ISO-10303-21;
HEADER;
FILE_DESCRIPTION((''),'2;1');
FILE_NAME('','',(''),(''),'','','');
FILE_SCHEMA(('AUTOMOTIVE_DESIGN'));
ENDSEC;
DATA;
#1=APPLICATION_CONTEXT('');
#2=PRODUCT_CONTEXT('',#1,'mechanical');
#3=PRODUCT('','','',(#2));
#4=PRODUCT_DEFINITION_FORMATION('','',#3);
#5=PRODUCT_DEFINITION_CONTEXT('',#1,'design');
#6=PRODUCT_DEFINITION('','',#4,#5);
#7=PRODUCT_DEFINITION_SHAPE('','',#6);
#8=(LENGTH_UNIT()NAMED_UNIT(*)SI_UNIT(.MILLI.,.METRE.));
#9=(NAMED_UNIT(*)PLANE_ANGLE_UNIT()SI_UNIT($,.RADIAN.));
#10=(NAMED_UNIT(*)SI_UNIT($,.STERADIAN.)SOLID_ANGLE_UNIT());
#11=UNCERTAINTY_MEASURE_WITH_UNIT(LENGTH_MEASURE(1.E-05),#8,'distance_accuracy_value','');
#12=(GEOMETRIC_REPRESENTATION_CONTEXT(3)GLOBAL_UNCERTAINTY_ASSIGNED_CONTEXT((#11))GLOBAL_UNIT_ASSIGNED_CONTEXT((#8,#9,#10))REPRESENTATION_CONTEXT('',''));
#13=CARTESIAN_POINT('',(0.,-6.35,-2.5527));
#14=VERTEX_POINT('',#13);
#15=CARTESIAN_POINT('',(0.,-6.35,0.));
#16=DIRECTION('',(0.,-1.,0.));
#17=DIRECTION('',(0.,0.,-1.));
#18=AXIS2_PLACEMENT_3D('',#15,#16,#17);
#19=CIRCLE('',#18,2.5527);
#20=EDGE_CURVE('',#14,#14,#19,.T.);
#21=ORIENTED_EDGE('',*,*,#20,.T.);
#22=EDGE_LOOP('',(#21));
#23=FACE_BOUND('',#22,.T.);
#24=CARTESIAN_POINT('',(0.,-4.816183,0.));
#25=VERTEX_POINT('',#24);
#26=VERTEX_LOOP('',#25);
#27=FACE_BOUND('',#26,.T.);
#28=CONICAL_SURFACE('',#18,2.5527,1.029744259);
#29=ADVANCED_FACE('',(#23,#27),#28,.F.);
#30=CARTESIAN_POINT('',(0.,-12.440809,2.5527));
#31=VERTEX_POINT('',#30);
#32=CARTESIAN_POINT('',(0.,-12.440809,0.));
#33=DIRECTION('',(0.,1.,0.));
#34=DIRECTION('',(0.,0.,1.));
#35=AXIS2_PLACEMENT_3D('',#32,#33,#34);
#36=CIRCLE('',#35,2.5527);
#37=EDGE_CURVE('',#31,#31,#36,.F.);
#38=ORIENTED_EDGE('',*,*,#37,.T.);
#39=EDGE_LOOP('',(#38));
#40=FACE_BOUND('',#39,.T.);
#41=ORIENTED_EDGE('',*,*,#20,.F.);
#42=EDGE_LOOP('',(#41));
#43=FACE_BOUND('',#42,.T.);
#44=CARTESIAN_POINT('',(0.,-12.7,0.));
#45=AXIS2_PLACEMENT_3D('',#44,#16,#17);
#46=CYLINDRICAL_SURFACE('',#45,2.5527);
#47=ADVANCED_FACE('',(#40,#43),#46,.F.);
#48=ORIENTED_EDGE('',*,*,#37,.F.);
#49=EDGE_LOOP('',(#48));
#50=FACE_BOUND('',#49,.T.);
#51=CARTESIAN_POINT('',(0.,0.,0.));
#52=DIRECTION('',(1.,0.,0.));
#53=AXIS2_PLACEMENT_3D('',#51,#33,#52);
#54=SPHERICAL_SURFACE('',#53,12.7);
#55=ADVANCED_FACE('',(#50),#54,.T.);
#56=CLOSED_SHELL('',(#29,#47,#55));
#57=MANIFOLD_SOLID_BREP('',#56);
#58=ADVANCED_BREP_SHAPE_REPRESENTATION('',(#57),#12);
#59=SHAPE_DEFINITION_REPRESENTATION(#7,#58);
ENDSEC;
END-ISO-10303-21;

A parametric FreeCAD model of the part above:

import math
import FreeCAD as App
import Part
import Sketcher
from FreeCAD import Vector
Q = App.Units.Quantity

doc = App.newDocument("Part")
params = doc.addObject("Spreadsheet::Sheet", "Params")
for row, (alias, value) in enumerate([
    ("sketch1_radius", "0.5 in"),
    ("revolution_angle", "360 deg"),
    ("sketch2_diameter", "0.201 in"),
    ("hole_diameter", "0.201 in"),
    ("hole_depth", "0.25 in"),
], start=1):
    params.set(f"A{row}", alias)
    params.set(f"B{row}", "=" + value)
    params.setAlias(f"B{row}", alias)

body = doc.addObject("PartDesign::Body", "Body")

sketch1 = body.newObject("Sketcher::SketchObject", "Sketch")
sketch1.AttachmentSupport = (doc.getObject("XY_Plane"), [""])
sketch1.MapMode = "FlatFace"
sketch1.addGeometry(Part.LineSegment(Vector(0, -13, 0), Vector(0, 13, 0)), False)
sketch1.addGeometry(Part.ArcOfCircle(Part.Circle(Vector(0, 0, 0), Vector(0, 0, 1), 13), math.radians(90), math.radians(270)), False)
sketch1.addConstraint(Sketcher.Constraint("Coincident", 0, 1, 1, 2))
sketch1.addConstraint(Sketcher.Constraint("Coincident", 1, 1, 0, 2))
sketch1.addConstraint(Sketcher.Constraint("Vertical", 0))
sketch1.addConstraint(Sketcher.Constraint("Coincident", 1, 3, -1, 1))
sketch1.addConstraint(Sketcher.Constraint("PointOnObject", 0, 1, -2))
sketch1.addConstraint(Sketcher.Constraint("Radius", 1, Q("0.5 in")))
sketch1.setExpression("Constraints[5]", "Params.sketch1_radius")
revolution = body.newObject("PartDesign::Revolution", "Revolution")
revolution.Profile = sketch1
revolution.ReferenceAxis = (sketch1, ["V_Axis"])
revolution.setExpression("Angle", "Params.revolution_angle")

sketch2 = body.newObject("Sketcher::SketchObject", "Sketch001")
sketch2.AttachmentSupport = (doc.getObject("XZ_Plane"), [""])
sketch2.MapMode = "FlatFace"
sketch2.AttachmentOffset = App.Placement(Vector(0, 0, 0.5 * 25.4), App.Rotation())
sketch2.addGeometry(Part.Circle(Vector(0, 0, 0), Vector(0, 0, 1), 2.6), False)
sketch2.addConstraint(Sketcher.Constraint("Coincident", 0, 3, -1, 1))
sketch2.addConstraint(Sketcher.Constraint("Diameter", 0, Q("0.201 in")))
sketch2.setExpression("Constraints[1]", "Params.sketch2_diameter")
doc.recompute()
hole = body.newObject("PartDesign::Hole", "Hole")
hole.Profile = sketch2
hole.ThreadType = "None"
hole.setExpression("Diameter", "Params.hole_diameter")
hole.DepthType = "Dimension"
hole.setExpression("Depth", "Params.hole_depth")
hole.DrillPoint = "Angled"
hole.DrillPointAngle = 118

doc.recompute()
